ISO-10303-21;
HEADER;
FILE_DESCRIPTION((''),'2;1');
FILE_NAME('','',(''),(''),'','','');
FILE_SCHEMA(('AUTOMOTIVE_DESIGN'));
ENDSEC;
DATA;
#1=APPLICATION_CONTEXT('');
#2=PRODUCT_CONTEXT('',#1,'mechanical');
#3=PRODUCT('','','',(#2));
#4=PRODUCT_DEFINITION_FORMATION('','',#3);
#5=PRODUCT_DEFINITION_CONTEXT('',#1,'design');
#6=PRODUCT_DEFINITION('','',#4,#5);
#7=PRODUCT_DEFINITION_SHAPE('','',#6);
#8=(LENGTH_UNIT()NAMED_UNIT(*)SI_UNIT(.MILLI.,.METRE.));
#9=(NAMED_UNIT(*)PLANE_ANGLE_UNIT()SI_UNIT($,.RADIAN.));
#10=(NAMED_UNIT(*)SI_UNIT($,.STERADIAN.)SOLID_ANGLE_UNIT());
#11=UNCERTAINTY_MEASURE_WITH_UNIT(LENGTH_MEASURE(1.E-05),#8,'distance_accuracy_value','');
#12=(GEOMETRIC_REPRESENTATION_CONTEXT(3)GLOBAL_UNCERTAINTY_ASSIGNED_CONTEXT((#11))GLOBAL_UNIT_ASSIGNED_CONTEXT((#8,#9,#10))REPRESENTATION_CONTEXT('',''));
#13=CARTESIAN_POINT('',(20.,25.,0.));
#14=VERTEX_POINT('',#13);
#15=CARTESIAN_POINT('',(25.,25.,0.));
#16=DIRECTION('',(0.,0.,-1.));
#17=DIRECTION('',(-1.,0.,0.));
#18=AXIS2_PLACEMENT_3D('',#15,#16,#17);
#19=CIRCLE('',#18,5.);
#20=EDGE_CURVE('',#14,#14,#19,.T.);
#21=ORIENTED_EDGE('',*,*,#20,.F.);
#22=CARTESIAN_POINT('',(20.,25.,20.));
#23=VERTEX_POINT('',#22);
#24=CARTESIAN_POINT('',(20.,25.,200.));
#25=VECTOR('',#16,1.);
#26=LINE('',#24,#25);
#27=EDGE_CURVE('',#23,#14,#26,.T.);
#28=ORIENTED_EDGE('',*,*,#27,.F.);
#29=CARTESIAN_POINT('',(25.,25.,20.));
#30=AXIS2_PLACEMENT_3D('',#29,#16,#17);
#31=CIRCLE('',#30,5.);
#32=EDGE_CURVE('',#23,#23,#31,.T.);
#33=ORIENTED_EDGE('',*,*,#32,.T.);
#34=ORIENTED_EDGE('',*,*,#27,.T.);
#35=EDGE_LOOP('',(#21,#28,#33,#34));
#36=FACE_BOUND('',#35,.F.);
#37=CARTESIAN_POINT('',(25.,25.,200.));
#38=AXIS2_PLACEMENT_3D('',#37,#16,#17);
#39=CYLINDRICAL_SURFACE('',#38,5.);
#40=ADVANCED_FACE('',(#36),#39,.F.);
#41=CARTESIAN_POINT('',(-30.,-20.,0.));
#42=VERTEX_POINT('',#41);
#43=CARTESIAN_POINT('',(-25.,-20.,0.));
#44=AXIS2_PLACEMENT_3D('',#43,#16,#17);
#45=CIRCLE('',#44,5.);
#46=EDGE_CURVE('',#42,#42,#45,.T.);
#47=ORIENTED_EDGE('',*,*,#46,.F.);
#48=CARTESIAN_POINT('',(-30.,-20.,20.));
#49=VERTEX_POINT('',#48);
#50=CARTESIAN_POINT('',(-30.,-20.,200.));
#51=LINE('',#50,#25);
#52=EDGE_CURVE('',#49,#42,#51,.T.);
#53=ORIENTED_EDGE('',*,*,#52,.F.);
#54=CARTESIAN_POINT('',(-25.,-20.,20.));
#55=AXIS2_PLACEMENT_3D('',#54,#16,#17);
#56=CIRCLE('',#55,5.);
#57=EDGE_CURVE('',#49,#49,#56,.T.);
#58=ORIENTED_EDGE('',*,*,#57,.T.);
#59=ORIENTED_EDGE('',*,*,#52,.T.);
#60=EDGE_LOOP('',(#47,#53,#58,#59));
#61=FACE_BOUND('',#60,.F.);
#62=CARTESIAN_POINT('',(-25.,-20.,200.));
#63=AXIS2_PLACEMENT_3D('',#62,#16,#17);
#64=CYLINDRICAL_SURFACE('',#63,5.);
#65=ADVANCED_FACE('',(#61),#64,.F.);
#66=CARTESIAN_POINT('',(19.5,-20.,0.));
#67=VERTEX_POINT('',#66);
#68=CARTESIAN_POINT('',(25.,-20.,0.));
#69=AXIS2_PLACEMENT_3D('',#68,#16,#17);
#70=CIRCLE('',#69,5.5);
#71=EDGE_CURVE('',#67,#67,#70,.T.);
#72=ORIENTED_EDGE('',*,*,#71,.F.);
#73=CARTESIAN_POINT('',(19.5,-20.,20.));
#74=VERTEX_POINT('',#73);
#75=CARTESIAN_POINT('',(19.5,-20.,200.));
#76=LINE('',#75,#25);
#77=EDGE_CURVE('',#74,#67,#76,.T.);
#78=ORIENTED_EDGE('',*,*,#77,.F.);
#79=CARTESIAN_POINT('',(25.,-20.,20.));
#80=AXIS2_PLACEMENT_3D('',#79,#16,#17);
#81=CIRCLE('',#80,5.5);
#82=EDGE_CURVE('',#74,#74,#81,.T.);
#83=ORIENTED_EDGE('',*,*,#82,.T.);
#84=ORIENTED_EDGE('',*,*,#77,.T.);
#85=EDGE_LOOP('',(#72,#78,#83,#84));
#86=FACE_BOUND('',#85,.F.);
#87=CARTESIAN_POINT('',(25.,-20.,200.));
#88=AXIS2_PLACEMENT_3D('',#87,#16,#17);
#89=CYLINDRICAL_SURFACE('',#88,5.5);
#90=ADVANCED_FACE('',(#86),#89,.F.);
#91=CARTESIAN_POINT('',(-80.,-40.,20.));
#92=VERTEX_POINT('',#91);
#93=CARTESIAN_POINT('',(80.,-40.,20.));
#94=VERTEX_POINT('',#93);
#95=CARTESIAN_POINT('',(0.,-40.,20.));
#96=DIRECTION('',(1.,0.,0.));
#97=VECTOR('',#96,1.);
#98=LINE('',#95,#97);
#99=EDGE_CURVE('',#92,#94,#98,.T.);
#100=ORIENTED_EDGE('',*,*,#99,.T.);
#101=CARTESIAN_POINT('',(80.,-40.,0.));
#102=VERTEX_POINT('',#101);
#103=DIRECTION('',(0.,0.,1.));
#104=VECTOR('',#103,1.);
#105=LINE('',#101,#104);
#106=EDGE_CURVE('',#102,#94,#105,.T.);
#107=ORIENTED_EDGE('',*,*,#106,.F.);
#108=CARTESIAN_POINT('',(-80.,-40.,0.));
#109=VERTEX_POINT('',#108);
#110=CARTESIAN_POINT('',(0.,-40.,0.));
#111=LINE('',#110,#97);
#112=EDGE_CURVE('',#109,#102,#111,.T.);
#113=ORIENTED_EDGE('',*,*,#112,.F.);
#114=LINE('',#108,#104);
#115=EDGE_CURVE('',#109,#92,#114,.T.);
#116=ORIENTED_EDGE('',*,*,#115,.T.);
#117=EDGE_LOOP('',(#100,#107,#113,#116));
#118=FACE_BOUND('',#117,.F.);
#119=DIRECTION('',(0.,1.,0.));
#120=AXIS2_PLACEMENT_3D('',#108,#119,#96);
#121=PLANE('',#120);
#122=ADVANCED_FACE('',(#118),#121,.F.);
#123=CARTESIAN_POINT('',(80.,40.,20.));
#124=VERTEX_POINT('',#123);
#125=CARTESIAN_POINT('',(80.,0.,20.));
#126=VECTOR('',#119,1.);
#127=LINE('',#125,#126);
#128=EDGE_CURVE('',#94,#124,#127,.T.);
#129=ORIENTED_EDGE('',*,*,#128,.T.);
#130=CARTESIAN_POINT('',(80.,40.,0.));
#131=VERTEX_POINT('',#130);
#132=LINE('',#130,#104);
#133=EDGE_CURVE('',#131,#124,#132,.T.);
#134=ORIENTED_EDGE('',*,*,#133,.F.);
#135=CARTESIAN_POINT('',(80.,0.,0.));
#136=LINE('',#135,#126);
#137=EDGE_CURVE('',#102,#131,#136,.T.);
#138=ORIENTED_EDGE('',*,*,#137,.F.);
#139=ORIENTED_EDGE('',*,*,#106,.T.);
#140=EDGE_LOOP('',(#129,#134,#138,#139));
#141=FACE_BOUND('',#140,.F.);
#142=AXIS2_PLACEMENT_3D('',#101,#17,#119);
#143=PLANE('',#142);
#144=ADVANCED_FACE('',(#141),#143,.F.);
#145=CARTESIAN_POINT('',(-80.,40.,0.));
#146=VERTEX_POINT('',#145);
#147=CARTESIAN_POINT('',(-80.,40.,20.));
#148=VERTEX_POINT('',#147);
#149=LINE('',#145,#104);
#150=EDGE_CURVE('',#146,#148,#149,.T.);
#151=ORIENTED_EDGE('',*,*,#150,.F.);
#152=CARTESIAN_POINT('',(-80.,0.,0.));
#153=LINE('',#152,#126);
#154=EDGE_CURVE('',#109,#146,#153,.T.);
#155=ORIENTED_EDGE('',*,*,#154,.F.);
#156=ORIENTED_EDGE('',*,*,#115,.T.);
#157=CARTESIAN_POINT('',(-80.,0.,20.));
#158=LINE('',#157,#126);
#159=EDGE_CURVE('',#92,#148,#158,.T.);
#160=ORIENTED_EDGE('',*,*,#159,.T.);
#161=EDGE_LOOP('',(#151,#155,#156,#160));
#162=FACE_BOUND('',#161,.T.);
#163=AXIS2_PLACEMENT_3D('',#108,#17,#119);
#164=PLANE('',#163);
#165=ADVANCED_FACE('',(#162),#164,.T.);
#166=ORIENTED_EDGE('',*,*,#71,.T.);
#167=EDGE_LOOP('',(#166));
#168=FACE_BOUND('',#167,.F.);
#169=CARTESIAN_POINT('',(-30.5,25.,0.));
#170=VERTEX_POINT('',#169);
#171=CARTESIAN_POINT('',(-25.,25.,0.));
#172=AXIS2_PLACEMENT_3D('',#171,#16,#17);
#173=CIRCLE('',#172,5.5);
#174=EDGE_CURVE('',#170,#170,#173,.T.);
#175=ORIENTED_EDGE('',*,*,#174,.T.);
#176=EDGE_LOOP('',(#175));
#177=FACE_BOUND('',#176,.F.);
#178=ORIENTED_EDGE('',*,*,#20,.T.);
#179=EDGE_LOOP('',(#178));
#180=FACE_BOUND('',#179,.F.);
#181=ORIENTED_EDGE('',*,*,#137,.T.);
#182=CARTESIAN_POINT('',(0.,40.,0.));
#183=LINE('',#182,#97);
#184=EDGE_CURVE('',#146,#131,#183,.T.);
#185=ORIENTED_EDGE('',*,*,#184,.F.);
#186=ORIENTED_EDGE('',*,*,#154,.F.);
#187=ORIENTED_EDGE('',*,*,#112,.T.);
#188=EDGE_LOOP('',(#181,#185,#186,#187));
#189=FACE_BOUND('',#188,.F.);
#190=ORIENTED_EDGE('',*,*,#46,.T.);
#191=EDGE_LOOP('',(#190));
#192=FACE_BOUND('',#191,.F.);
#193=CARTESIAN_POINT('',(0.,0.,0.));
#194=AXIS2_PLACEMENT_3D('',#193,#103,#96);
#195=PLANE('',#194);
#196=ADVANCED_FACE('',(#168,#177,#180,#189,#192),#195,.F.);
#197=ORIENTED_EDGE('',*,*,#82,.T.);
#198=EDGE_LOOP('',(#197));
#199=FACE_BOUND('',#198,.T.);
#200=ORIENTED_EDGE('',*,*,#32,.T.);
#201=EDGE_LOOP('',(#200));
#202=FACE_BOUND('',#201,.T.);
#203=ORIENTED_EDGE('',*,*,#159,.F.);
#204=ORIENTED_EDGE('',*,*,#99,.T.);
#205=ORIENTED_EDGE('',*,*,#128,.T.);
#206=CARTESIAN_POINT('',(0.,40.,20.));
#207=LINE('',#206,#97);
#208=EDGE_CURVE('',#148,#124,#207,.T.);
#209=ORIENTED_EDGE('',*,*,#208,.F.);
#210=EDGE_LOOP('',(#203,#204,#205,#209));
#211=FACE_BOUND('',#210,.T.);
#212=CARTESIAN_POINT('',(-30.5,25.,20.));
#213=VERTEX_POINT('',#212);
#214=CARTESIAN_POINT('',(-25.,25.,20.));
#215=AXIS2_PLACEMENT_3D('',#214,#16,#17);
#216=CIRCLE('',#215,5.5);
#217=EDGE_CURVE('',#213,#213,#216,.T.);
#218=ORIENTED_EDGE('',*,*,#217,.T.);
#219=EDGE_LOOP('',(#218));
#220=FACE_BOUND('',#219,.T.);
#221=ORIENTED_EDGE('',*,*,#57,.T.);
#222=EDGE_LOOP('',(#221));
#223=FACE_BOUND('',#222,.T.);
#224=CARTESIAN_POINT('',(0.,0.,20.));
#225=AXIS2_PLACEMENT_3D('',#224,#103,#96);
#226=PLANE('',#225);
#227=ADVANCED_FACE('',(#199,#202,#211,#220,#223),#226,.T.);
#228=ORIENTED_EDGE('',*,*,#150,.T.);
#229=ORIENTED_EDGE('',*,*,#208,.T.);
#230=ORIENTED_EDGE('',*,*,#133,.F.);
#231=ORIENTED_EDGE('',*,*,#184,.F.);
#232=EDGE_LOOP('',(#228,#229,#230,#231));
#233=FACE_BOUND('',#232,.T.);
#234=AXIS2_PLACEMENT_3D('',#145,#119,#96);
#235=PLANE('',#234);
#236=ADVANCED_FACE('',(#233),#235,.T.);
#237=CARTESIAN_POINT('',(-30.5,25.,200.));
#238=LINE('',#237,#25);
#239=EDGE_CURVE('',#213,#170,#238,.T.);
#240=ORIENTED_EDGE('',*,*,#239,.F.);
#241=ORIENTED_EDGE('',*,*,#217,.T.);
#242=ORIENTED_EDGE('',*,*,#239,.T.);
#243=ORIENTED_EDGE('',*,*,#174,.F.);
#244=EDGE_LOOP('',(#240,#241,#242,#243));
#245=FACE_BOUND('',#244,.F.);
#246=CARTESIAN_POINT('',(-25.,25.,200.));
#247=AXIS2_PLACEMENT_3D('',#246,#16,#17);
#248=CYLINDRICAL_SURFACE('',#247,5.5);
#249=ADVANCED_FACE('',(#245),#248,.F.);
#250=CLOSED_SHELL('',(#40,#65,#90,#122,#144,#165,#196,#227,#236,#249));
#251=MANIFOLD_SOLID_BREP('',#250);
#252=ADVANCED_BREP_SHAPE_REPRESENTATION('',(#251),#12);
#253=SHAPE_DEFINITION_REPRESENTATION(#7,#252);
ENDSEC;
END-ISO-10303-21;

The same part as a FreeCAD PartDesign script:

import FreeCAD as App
import Part
import Sketcher
Q = App.Units.Quantity


def add_polygon(sketch, points):
    """Adds a closed chain of lines whose ends are joined by coincident constraints."""
    first, n = sketch.GeometryCount, len(points)
    for a, b in zip(points, points[1:] + points[:1]):
        sketch.addGeometry(Part.LineSegment(App.Vector(*a, 0), App.Vector(*b, 0)), False)
    for i in range(n):
        sketch.addConstraint(Sketcher.Constraint("Coincident", first + i, 2, first + (i + 1) % n, 1))

doc = App.newDocument("Part")
body = doc.addObject("PartDesign::Body", "Body")

sketch1 = body.newObject("Sketcher::SketchObject", "Sketch")
sketch1.AttachmentSupport = (doc.getObject("XY_Plane"), [""])
sketch1.MapMode = "FlatFace"
add_polygon(sketch1, [(-80, 40), (-80, -40), (80, -40), (80, 40)])
sketch1.addConstraint([
    Sketcher.Constraint("Vertical", 0),
    Sketcher.Constraint("Horizontal", 1),
    Sketcher.Constraint("Vertical", 2),
    Sketcher.Constraint("Horizontal", 3),
    Sketcher.Constraint("Symmetric", 0, 2, 2, 2, -1, 1),
    Sketcher.Constraint("DistanceX", 1, 1, 1, 2, Q("160 mm")),
    Sketcher.Constraint("DistanceY", 0, 2, 0, 1, Q("80 mm")),
])
pad1 = body.newObject("PartDesign::Pad", "Pad")
pad1.Profile = sketch1
pad1.Length = 20

sketch2 = body.newObject("Sketcher::SketchObject", "Sketch001")
sketch2.AttachmentSupport = (doc.getObject("XY_Plane"), [""])
sketch2.MapMode = "FlatFace"
sketch2.AttachmentOffset = App.Placement(App.Vector(0, 0, 20), App.Rotation())
sketch2.addGeometry([
    Part.Circle(App.Vector(-25, 25, 0), App.Vector(0, 0, 1), 6),
    Part.Circle(App.Vector(25, -20, 0), App.Vector(0, 0, 1), 6),
], False)
sketch2.addConstraint([
    Sketcher.Constraint("Equal", 0, 1),
    Sketcher.Constraint("Diameter", 0, Q("11 mm")),
    Sketcher.Constraint("DistanceX", 0, 3, -1, 1, Q("25 mm")),
    Sketcher.Constraint("DistanceY", -1, 1, 0, 3, Q("25 mm")),
    Sketcher.Constraint("DistanceX", -1, 1, 1, 3, Q("25 mm")),
    Sketcher.Constraint("DistanceY", 1, 3, -1, 1, Q("20 mm")),
])
doc.recompute()
hole = body.newObject("PartDesign::Hole", "Hole")
hole.Profile = sketch2
hole.ThreadType = "None"
hole.Diameter = 11
hole.DepthType = "ThroughAll"

sketch3 = body.newObject("Sketcher::SketchObject", "Sketch002")
sketch3.AttachmentSupport = (doc.getObject("XY_Plane"), [""])
sketch3.MapMode = "FlatFace"
sketch3.AttachmentOffset = App.Placement(App.Vector(0, 0, 20), App.Rotation())
sketch3.addGeometry([
    Part.Circle(App.Vector(25, 25, 0), App.Vector(0, 0, 1), 5),
    Part.Circle(App.Vector(-25, -20, 0), App.Vector(0, 0, 1), 5),
], False)
sketch3.addConstraint([
    Sketcher.Constraint("Equal", 0, 1),
    Sketcher.Constraint("Diameter", 0, Q("10 mm")),
    Sketcher.Constraint("DistanceX", -1, 1, 0, 3, Q("25 mm")),
    Sketcher.Constraint("DistanceY", -1, 1, 0, 3, Q("25 mm")),
    Sketcher.Constraint("DistanceX", 1, 3, -1, 1, Q("25 mm")),
    Sketcher.Constraint("DistanceY", 1, 3, -1, 1, Q("20 mm")),
])
doc.recompute()
hole2 = body.newObject("PartDesign::Hole", "Hole001")
hole2.Profile = sketch3
hole2.ThreadType = "None"
hole2.Diameter = 10
hole2.DepthType = "ThroughAll"

doc.recompute()
